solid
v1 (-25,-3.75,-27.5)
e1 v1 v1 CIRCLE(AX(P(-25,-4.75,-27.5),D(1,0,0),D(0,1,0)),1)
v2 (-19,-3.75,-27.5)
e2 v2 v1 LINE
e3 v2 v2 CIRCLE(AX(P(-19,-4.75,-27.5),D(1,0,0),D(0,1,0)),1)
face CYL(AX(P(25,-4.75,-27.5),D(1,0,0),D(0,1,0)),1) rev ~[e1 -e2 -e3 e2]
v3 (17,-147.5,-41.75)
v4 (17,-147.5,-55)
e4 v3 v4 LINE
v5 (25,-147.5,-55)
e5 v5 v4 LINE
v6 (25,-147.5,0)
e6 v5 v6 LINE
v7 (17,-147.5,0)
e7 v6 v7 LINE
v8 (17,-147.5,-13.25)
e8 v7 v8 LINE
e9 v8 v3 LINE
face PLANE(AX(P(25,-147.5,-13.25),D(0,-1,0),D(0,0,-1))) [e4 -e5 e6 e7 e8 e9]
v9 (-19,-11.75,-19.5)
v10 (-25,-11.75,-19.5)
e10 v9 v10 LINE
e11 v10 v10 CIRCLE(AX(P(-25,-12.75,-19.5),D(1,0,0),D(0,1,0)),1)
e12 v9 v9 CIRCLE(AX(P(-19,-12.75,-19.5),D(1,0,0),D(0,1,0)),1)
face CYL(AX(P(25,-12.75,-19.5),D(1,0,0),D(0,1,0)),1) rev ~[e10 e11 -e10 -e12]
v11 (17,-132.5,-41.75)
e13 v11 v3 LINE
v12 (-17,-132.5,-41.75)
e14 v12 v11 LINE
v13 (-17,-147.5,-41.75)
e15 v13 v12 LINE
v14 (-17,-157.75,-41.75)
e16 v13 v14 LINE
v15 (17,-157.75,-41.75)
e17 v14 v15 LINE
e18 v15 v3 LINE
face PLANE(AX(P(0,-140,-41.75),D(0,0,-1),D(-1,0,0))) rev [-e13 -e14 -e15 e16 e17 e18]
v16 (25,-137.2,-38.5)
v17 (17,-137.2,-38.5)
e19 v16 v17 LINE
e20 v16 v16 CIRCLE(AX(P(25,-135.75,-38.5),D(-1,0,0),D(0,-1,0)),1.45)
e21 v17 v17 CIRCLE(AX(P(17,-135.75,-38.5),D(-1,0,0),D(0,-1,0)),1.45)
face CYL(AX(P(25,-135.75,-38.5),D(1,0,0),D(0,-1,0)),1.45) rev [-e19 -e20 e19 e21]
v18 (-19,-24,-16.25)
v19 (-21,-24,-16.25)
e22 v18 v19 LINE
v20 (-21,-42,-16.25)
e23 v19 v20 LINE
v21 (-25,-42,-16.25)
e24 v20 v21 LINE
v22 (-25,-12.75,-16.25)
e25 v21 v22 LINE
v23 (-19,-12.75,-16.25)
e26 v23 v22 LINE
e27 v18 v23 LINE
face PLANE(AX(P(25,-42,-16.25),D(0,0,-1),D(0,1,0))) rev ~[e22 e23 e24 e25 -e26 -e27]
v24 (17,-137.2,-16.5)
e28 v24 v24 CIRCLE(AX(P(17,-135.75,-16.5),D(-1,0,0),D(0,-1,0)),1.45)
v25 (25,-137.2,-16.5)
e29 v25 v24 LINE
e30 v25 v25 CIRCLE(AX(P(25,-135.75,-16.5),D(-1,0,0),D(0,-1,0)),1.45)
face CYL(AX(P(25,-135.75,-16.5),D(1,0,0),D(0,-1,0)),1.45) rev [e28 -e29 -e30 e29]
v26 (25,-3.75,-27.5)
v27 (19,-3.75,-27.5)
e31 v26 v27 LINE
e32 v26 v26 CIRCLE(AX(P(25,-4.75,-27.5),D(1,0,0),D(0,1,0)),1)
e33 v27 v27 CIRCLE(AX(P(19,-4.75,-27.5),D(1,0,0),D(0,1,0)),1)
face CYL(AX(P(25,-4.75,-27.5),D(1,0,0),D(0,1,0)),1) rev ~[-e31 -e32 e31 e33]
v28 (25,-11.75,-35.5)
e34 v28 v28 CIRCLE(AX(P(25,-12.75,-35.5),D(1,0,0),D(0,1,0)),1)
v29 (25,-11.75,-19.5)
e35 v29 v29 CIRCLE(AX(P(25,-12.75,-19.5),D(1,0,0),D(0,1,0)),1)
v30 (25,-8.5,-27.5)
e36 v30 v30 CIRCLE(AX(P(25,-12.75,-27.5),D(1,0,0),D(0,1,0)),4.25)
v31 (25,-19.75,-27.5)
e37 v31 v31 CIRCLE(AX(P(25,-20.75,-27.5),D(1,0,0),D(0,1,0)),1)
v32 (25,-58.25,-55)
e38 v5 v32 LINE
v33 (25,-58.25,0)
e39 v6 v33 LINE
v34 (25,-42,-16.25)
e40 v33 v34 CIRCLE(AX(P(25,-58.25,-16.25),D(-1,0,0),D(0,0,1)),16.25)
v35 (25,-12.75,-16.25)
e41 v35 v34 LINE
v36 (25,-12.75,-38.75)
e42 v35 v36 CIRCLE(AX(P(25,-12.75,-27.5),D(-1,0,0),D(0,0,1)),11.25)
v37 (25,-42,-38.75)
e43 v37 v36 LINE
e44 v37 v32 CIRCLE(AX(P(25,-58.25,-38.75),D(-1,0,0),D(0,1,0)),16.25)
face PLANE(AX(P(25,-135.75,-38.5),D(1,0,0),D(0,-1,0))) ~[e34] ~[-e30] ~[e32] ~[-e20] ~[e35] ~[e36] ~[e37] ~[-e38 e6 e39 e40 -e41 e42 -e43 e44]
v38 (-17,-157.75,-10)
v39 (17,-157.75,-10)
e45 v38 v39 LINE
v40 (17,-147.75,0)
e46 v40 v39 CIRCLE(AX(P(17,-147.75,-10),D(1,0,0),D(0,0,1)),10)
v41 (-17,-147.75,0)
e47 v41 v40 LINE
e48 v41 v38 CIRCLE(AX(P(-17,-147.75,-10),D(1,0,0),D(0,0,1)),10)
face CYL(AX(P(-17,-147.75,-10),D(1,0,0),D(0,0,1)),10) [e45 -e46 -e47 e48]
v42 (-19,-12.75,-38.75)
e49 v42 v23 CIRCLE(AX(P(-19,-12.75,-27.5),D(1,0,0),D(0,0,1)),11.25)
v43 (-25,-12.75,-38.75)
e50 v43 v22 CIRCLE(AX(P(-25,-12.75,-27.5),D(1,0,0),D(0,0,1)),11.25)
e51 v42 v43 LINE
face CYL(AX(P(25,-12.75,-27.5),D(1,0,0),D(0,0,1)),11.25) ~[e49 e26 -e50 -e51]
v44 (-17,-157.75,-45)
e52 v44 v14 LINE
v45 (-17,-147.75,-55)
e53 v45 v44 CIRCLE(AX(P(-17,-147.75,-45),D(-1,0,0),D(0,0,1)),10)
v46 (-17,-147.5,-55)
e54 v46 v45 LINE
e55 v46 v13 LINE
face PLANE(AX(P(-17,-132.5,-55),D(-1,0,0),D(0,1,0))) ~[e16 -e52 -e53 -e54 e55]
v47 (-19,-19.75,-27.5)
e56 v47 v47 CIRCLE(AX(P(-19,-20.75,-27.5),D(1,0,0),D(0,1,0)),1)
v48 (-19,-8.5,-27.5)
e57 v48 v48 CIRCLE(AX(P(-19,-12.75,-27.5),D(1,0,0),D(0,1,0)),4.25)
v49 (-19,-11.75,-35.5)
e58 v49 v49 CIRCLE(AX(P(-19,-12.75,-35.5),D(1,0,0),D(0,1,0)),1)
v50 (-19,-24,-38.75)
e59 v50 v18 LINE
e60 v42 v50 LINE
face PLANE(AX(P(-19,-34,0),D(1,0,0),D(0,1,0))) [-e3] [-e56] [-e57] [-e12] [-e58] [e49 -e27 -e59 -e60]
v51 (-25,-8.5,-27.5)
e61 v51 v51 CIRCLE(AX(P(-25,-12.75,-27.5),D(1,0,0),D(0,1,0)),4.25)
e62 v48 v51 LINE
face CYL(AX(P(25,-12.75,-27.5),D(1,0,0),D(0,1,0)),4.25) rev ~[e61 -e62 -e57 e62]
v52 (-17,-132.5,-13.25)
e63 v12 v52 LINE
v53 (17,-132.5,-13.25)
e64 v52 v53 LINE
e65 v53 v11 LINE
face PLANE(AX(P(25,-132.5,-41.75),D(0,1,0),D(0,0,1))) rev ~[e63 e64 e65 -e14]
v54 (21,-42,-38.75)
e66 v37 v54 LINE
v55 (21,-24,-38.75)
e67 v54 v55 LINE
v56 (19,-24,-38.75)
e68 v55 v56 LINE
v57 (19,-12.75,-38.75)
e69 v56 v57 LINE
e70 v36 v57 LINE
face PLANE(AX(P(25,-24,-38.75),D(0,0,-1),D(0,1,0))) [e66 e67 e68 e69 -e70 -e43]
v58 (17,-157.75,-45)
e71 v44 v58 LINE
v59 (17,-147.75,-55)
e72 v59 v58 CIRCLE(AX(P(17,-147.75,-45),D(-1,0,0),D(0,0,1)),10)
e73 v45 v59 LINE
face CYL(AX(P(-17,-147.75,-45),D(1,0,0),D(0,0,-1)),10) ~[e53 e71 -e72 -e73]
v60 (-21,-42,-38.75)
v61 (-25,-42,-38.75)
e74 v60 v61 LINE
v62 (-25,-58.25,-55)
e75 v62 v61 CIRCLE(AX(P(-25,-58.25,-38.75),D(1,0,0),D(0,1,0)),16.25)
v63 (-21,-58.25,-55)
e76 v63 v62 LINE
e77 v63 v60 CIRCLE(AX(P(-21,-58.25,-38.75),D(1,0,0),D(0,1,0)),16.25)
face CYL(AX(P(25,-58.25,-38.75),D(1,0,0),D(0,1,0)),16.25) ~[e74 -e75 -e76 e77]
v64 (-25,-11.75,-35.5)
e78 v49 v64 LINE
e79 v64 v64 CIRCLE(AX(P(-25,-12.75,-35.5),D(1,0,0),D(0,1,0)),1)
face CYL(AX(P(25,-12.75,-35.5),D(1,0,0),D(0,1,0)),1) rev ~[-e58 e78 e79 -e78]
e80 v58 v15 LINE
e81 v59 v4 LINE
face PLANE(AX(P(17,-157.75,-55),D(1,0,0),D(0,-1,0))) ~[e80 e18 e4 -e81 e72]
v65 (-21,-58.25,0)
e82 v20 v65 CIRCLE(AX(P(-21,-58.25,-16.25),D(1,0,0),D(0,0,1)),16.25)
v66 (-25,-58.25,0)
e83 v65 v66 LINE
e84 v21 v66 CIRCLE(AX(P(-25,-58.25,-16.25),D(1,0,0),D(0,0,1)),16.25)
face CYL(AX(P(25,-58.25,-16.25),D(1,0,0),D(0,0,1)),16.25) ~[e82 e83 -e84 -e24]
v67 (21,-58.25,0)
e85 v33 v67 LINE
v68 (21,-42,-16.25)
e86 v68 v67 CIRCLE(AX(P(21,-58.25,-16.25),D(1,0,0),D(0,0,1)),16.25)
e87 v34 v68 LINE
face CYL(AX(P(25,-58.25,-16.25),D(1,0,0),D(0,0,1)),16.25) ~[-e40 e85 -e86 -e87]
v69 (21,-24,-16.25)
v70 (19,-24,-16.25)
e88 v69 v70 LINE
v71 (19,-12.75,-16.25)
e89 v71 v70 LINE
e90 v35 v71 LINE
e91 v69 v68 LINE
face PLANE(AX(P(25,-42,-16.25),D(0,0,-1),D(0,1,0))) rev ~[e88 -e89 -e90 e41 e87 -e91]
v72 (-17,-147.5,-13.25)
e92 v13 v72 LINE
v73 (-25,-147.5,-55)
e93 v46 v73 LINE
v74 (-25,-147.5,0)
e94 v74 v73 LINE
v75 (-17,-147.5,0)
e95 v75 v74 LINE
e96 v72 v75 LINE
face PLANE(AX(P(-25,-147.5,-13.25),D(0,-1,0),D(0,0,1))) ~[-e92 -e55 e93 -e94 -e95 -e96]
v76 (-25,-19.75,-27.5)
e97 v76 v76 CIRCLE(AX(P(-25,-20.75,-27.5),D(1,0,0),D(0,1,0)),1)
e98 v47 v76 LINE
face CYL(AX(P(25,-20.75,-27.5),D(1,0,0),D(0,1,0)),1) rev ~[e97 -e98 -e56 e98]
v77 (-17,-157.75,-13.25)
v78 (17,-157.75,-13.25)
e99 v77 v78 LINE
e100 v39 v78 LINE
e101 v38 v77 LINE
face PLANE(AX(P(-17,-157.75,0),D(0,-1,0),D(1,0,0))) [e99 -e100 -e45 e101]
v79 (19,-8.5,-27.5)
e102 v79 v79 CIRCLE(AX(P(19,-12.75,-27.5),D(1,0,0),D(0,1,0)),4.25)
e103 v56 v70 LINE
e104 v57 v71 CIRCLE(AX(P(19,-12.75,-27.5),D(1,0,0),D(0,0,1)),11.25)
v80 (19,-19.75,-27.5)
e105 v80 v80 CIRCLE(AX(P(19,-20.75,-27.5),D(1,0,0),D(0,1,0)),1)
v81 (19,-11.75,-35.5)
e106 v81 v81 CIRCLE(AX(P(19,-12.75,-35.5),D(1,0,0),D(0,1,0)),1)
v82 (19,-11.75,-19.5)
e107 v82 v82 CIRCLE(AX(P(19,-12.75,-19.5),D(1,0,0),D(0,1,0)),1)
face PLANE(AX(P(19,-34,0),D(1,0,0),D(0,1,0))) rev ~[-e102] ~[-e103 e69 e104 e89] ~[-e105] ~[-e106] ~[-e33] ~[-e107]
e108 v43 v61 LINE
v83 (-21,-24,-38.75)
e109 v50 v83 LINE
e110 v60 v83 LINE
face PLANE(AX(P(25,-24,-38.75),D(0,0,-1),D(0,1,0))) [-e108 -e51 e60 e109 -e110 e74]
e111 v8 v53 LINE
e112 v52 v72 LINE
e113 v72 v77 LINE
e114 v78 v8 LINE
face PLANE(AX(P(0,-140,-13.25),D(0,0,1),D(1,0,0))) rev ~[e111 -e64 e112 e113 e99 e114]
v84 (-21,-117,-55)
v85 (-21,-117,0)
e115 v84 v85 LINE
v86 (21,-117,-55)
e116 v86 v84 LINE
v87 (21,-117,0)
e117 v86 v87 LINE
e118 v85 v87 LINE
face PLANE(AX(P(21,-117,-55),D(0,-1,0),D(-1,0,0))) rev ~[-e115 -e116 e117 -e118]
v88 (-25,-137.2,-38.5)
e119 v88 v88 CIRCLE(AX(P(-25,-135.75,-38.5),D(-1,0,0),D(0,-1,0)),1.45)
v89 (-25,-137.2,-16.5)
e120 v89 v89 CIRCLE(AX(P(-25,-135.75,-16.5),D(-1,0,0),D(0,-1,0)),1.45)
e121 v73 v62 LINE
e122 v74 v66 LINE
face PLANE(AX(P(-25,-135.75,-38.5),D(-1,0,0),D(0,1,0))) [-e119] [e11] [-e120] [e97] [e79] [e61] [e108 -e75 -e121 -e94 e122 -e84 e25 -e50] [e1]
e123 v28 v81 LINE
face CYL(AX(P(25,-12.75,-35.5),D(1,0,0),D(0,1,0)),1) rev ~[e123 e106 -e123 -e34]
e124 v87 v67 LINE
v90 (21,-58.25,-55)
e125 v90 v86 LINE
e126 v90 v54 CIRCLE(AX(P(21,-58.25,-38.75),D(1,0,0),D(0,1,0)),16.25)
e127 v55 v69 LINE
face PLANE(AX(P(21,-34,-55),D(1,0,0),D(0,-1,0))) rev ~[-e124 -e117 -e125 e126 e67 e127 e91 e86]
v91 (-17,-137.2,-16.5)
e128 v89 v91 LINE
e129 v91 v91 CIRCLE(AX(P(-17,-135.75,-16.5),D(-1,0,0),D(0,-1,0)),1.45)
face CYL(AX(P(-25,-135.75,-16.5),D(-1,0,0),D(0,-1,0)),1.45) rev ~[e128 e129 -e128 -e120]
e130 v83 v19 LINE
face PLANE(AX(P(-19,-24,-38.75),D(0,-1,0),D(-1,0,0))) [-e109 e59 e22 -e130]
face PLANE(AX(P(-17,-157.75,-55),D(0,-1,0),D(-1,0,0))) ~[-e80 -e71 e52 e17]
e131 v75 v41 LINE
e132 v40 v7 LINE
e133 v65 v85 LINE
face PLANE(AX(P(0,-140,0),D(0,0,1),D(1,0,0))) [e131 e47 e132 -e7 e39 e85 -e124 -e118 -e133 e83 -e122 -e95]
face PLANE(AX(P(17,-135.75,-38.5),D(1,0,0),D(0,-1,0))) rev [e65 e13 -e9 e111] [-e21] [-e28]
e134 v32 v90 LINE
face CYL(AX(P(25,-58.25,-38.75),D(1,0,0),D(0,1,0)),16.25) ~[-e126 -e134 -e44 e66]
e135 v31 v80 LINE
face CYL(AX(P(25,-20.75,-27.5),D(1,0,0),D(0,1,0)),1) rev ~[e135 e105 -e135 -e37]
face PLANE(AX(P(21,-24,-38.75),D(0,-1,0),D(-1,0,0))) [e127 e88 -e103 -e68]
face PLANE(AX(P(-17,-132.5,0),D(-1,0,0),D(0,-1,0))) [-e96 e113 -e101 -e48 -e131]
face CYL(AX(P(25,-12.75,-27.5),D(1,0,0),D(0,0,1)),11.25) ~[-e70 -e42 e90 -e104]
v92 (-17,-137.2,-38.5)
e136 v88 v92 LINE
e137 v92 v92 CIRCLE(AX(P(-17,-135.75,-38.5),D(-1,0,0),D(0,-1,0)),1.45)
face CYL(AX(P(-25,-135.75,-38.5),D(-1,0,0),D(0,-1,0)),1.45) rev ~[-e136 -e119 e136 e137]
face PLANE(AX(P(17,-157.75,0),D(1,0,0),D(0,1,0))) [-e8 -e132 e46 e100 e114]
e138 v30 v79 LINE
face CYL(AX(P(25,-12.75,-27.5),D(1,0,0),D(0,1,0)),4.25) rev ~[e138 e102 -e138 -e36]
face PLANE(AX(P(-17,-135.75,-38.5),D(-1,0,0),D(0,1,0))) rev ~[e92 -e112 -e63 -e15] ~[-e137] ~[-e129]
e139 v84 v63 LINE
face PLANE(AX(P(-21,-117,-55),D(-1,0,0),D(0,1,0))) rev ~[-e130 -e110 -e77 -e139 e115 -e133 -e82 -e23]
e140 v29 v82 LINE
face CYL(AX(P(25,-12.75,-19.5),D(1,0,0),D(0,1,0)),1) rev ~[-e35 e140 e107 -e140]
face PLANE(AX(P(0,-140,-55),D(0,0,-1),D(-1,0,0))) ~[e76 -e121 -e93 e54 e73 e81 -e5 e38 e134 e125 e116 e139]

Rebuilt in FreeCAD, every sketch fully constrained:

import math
import FreeCAD as App
import Part
import Sketcher

V = App.Vector
Q = App.Units.Quantity


def edges_at(feature, points):
    """Names of the edges that pass closest to the given points."""
    edges = feature.Shape.Edges
    near = lambda p: min(range(len(edges)), key=lambda i: edges[i].distToShape(Part.Vertex(*p))[0])
    return sorted({f"Edge{near(p) + 1}" for p in points})


def add_polygon(sketch, points):
    """Adds a closed chain of lines whose ends are joined by coincident constraints."""
    first, n = sketch.GeometryCount, len(points)
    for a, b in zip(points, points[1:] + points[:1]):
        sketch.addGeometry(Part.LineSegment(App.Vector(*a, 0), App.Vector(*b, 0)), False)
    for i in range(n):
        sketch.addConstraint(Sketcher.Constraint("Coincident", first + i, 2, first + (i + 1) % n, 1))

doc = App.newDocument("Part")
body = doc.addObject("PartDesign::Body", "Body")

# Sketch on XY plane
sketch1 = body.newObject("Sketcher::SketchObject", "Sketch")
sketch1.AttachmentSupport = (doc.getObject("XY_Plane"), [""])
sketch1.MapMode = "FlatFace"
add_polygon(sketch1, [(-25, 0), (-25, -170), (25, -170), (25, 0)])  # lines 0-3
sketch1.addConstraint([
    Sketcher.Constraint("Vertical", 0),
    Sketcher.Constraint("Horizontal", 1),
    Sketcher.Constraint("Vertical", 2),
    Sketcher.Constraint("Horizontal", 3),
    Sketcher.Constraint("Symmetric", 2, 2, 3, 2, -1, 1),
    Sketcher.Constraint("DistanceX", 1, 1, 1, 2, Q("50 mm")),
    Sketcher.Constraint("DistanceY", 0, 2, 0, 1, Q("170 mm")),
])
pad1 = body.newObject("PartDesign::Pad", "Pad")
pad1.Profile = sketch1
pad1.Length = 55
pad1.Reversed = True

# Sketch on XY plane
sketch2 = body.newObject("Sketcher::SketchObject", "Sketch001")
sketch2.AttachmentSupport = (doc.getObject("XY_Plane"), [""])
sketch2.MapMode = "FlatFace"
add_polygon(sketch2, [(-17, 0), (-17, -27), (17, -27), (17, 0)])  # lines 0-3
sketch2.addConstraint([
    Sketcher.Constraint("Vertical", 0),
    Sketcher.Constraint("Horizontal", 1),
    Sketcher.Constraint("Vertical", 2),
    Sketcher.Constraint("Horizontal", 3),
    Sketcher.Constraint("Symmetric", 2, 2, 3, 2, -1, 1),
    Sketcher.Constraint("DistanceX", 1, 1, 1, 2, Q("34 mm")),
    Sketcher.Constraint("DistanceY", 0, 2, 0, 1, Q("27 mm")),
])
pocket1 = body.newObject("PartDesign::Pocket", "Pocket")
pocket1.Profile = sketch2
pocket1.Type = "ThroughAll"

# Sketch on YZ plane
sketch3 = body.newObject("Sketcher::SketchObject", "Sketch002")
sketch3.AttachmentSupport = (doc.getObject("YZ_Plane"), [""])
sketch3.MapMode = "FlatFace"
sketch3.AttachmentOffset = App.Placement(V(0, 0, 25), App.Rotation())
add_polygon(sketch3, [(0, -45), (-24, -45), (-24, -55), (0, -55)])  # lines 0-3
add_polygon(sketch3, [(0, 0), (-24, 0), (-24, -10), (0, -10)])  # lines 4-7
sketch3.addGeometry(Part.Circle(V(-12.75, -27.5, 0), V(0, 0, 1), 4.25), False)  # 8
sketch3.addGeometry(Part.Circle(V(-12.75, -35.5, 0), V(0, 0, 1), 1), False)  # 9
sketch3.addGeometry(Part.Circle(V(-4.75, -27.5, 0), V(0, 0, 1), 1), False)  # 10
sketch3.addGeometry(Part.Circle(V(-20.75, -27.5, 0), V(0, 0, 1), 1), False)  # 11
sketch3.addGeometry(Part.Circle(V(-12.75, -19.5, 0), V(0, 0, 1), 1), False)  # 12
sketch3.addConstraint([
    Sketcher.Constraint("Horizontal", 0),
    Sketcher.Constraint("Vertical", 1),
    Sketcher.Constraint("Horizontal", 2),
    Sketcher.Constraint("Vertical", 3),
    Sketcher.Constraint("Horizontal", 4),
    Sketcher.Constraint("Vertical", 5),
    Sketcher.Constraint("Horizontal", 6),
    Sketcher.Constraint("Vertical", 7),
    Sketcher.Constraint("Coincident", 7, 2, -1, 1),
    Sketcher.Constraint("Equal", 9, 10),
    Sketcher.Constraint("Equal", 10, 11),
    Sketcher.Constraint("Equal", 11, 12),
    Sketcher.Constraint("PointOnObject", 2, 2, -2),
    Sketcher.Constraint("Horizontal", 8, 3, 10, 3),
    Sketcher.Constraint("Horizontal", 10, 3, 11, 3),
    Sketcher.Constraint("Vertical", 8, 3, 9, 3),
    Sketcher.Constraint("Vertical", 9, 3, 12, 3),
    Sketcher.Constraint("Vertical", 1, 2, 4, 2),
    Sketcher.Constraint("Equal", 3, 5),
    Sketcher.Constraint("Diameter", 9, Q("2 mm")),
    Sketcher.Constraint("Diameter", 8, Q("8.5 mm")),
    Sketcher.Constraint("DistanceX", 0, 2, 0, 1, Q("24 mm")),
    Sketcher.Constraint("DistanceY", 1, 2, 1, 1, Q("10 mm")),
    Sketcher.Constraint("DistanceY", 0, 2, -1, 1, Q("45 mm")),
    Sketcher.Constraint("DistanceY", 9, 3, 8, 3, Q("8 mm")),
    Sketcher.Constraint("DistanceX", 8, 3, 10, 3, Q("8 mm")),
    Sketcher.Constraint("DistanceX", 11, 3, 8, 3, Q("8 mm")),
    Sketcher.Constraint("DistanceY", 8, 3, 12, 3, Q("8 mm")),
    Sketcher.Constraint("DistanceY", 8, 3, -1, 1, Q("27.5 mm")),
    Sketcher.Constraint("DistanceX", 8, 3, -1, 1, Q("12.75 mm")),
])
pocket2 = body.newObject("PartDesign::Pocket", "Pocket001")
pocket2.Profile = sketch3
pocket2.Type = "ThroughAll"

# Sketch on XY plane
sketch4 = body.newObject("Sketcher::SketchObject", "Sketch003")
sketch4.AttachmentSupport = (doc.getObject("XY_Plane"), [""])
sketch4.MapMode = "FlatFace"
sketch4.AttachmentOffset = App.Placement(V(0, 0, -10), App.Rotation())
add_polygon(sketch4, [(-19, 0), (-19, -24), (-17, -24), (-17, 0)])  # lines 0-3
add_polygon(sketch4, [(17, 0), (17, -24), (19, -24), (19, 0)])  # lines 4-7
sketch4.addConstraint([
    Sketcher.Constraint("Vertical", 0),
    Sketcher.Constraint("Horizontal", 1),
    Sketcher.Constraint("Vertical", 2),
    Sketcher.Constraint("Horizontal", 3),
    Sketcher.Constraint("Vertical", 4),
    Sketcher.Constraint("Horizontal", 5),
    Sketcher.Constraint("Vertical", 6),
    Sketcher.Constraint("Horizontal", 7),
    Sketcher.Constraint("Symmetric", 3, 2, 6, 2, -1, 1),
    Sketcher.Constraint("Symmetric", 1, 2, 4, 2, -2),
    Sketcher.Constraint("PointOnObject", 2, 2, -1),
    Sketcher.Constraint("DistanceX", 1, 1, 1, 2, Q("2 mm")),
    Sketcher.Constraint("DistanceY", 0, 2, 0, 1, Q("24 mm")),
    Sketcher.Constraint("DistanceX", 0, 2, -1, 1, Q("19 mm")),
])
pocket3 = body.newObject("PartDesign::Pocket", "Pocket002")
pocket3.Profile = sketch4
pocket3.Type = "ThroughAll"

# Sketch on YZ plane
sketch5 = body.newObject("Sketcher::SketchObject", "Sketch004")
sketch5.AttachmentSupport = (doc.getObject("YZ_Plane"), [""])
sketch5.MapMode = "FlatFace"
sketch5.AttachmentOffset = App.Placement(V(0, 0, 25), App.Rotation())
sketch5.addGeometry([
    Part.LineSegment(V(0, -45, 0), V(0, -10, 0)),  # 0
    Part.LineSegment(V(0, -10, 0), V(-24, -10, 0)),  # 1
    Part.LineSegment(V(-24, -10, 0), V(-24, -16.25, 0)),  # 2
    Part.LineSegment(V(-24, -16.25, 0), V(-12.75, -16.25, 0)),  # 3
    Part.ArcOfCircle(Part.Circle(V(-12.75, -27.5, 0), V(0, 0, 1), 11.25), math.radians(-90), math.radians(90)),  # 4
    Part.LineSegment(V(-12.75, -38.75, 0), V(-24, -38.75, 0)),  # 5
    Part.LineSegment(V(-24, -38.75, 0), V(-24, -45, 0)),  # 6
    Part.LineSegment(V(-24, -45, 0), V(0, -45, 0)),  # 7
], False)
sketch5.addConstraint([
    Sketcher.Constraint("Coincident", 0, 2, 1, 1),
    Sketcher.Constraint("Coincident", 1, 2, 2, 1),
    Sketcher.Constraint("Coincident", 2, 2, 3, 1),
    Sketcher.Constraint("Tangent", 3, 2, 4, 2),
    Sketcher.Constraint("Tangent", 4, 1, 5, 1),
    Sketcher.Constraint("Coincident", 5, 2, 6, 1),
    Sketcher.Constraint("Coincident", 6, 2, 7, 1),
    Sketcher.Constraint("Coincident", 7, 2, 0, 1),
    Sketcher.Constraint("Vertical", 0),
    Sketcher.Constraint("Horizontal", 1),
    Sketcher.Constraint("Vertical", 2),
    Sketcher.Constraint("Horizontal", 3),
    Sketcher.Constraint("Horizontal", 5),
    Sketcher.Constraint("Vertical", 6),
    Sketcher.Constraint("Horizontal", 7),
    Sketcher.Constraint("PointOnObject", 0, 2, -2),
    Sketcher.Constraint("Vertical", 2, 2, 5, 2),
    Sketcher.Constraint("Equal", 2, 6),
    Sketcher.Constraint("DistanceX", 1, 2, 1, 1, Q("24 mm")),
    Sketcher.Constraint("DistanceY", 0, 1, 0, 2, Q("35 mm")),
    Sketcher.Constraint("Radius", 4, Q("11.25 mm")),
    Sketcher.Constraint("DistanceY", 0, 2, -1, 1, Q("10 mm")),
    Sketcher.Constraint("DistanceX", 3, 1, 3, 2, Q("11.25 mm")),
])
pocket4 = body.newObject("PartDesign::Pocket", "Pocket003")
pocket4.Profile = sketch5
pocket4.Type = "ThroughAll"

# Sketch on XY plane
sketch6 = body.newObject("Sketcher::SketchObject", "Sketch005")
sketch6.AttachmentSupport = (doc.getObject("XY_Plane"), [""])
sketch6.MapMode = "FlatFace"
add_polygon(sketch6, [(-19, -24), (-19, -34), (19, -34), (19, -24)])  # lines 0-3
sketch6.addConstraint([
    Sketcher.Constraint("Vertical", 0),
    Sketcher.Constraint("Horizontal", 1),
    Sketcher.Constraint("Vertical", 2),
    Sketcher.Constraint("Horizontal", 3),
    Sketcher.Constraint("DistanceX", 1, 1, 1, 2, Q("38 mm")),
    Sketcher.Constraint("DistanceY", 0, 2, 0, 1, Q("10 mm")),
    Sketcher.Constraint("DistanceX", 0, 2, -1, 1, Q("19 mm")),
    Sketcher.Constraint("DistanceY", 0, 2, -1, 1, Q("34 mm")),
])
pocket5 = body.newObject("PartDesign::Pocket", "Pocket004")
pocket5.Profile = sketch6
pocket5.Type = "ThroughAll"

# Sketch on YZ plane
sketch7 = body.newObject("Sketcher::SketchObject", "Sketch006")
sketch7.AttachmentSupport = (doc.getObject("YZ_Plane"), [""])
sketch7.MapMode = "FlatFace"
sketch7.AttachmentOffset = App.Placement(V(0, 0, 25), App.Rotation())
add_polygon(sketch7, [(-132.5, -13.25), (-167.75, -13.25), (-167.75, 0), (-170, 0), (-170, -55), (-167.75, -55), (-167.75, -41.75), (-132.5, -41.75)])  # lines 0-7
sketch7.addConstraint([
    Sketcher.Constraint("Horizontal", 0),
    Sketcher.Constraint("Vertical", 1),
    Sketcher.Constraint("Horizontal", 2),
    Sketcher.Constraint("Vertical", 3),
    Sketcher.Constraint("Horizontal", 4),
    Sketcher.Constraint("Vertical", 5),
    Sketcher.Constraint("Horizontal", 6),
    Sketcher.Constraint("Vertical", 7),
    Sketcher.Constraint("PointOnObject", 1, 2, -1),
    Sketcher.Constraint("Vertical", 1, 2, 4, 2),
    Sketcher.Constraint("Equal", 1, 5),
    Sketcher.Constraint("DistanceY", 3, 2, 3, 1, Q("55 mm")),
    Sketcher.Constraint("DistanceY", 7, 1, 7, 2, Q("28.5 mm")),
    Sketcher.Constraint("DistanceX", 2, 2, -1, 1, Q("170 mm")),
    Sketcher.Constraint("DistanceX", 0, 2, 0, 1, Q("35.25 mm")),
    Sketcher.Constraint("DistanceX", 2, 2, 2, 1, Q("2.25 mm")),
])
pocket6 = body.newObject("PartDesign::Pocket", "Pocket005")
pocket6.Profile = sketch7
pocket6.Type = "ThroughAll"

# Sketch on XY plane
sketch8 = body.newObject("Sketcher::SketchObject", "Sketch007")
sketch8.AttachmentSupport = (doc.getObject("XY_Plane"), [""])
sketch8.MapMode = "FlatFace"
add_polygon(sketch8, [(-17, -132.5), (-17, -167.75), (17, -167.75), (17, -132.5)])  # lines 0-3
sketch8.addConstraint([
    Sketcher.Constraint("Vertical", 0),
    Sketcher.Constraint("Horizontal", 1),
    Sketcher.Constraint("Vertical", 2),
    Sketcher.Constraint("Horizontal", 3),
    Sketcher.Constraint("DistanceX", 1, 1, 1, 2, Q("34 mm")),
    Sketcher.Constraint("DistanceX", 0, 2, -1, 1, Q("17 mm")),
    Sketcher.Constraint("DistanceY", 0, 2, 0, 1, Q("35.25 mm")),
    Sketcher.Constraint("DistanceY", 2, 2, -1, 1, Q("132.5 mm")),
])
pocket7 = body.newObject("PartDesign::Pocket", "Pocket006")
pocket7.Profile = sketch8
pocket7.Type = "ThroughAll"

# Sketch on YZ plane
sketch9 = body.newObject("Sketcher::SketchObject", "Sketch008")
sketch9.AttachmentSupport = (doc.getObject("YZ_Plane"), [""])
sketch9.MapMode = "FlatFace"
sketch9.AttachmentOffset = App.Placement(V(0, 0, 25), App.Rotation())
sketch9.addGeometry([
    Part.ArcOfCircle(Part.Circle(V(-167.75, -27.5, 0), V(0, 0, 1), 10.25), math.radians(0), math.radians(90)),  # 0
    Part.ArcOfCircle(Part.Circle(V(-167.75, -27.5, 0), V(0, 0, 1), 10.25), math.radians(-90), math.radians(0)),  # 1
    Part.LineSegment(V(-167.75, -37.75, 0), V(-167.75, -55, 0)),  # 2
    Part.LineSegment(V(-167.75, -55, 0), V(-147.5, -55, 0)),  # 3
    Part.LineSegment(V(-147.5, -55, 0), V(-147.5, 0, 0)),  # 4
    Part.LineSegment(V(-147.5, 0, 0), V(-167.75, 0, 0)),  # 5
    Part.LineSegment(V(-167.75, 0, 0), V(-167.75, -17.25, 0)),  # 6
], False)
sketch9.addConstraint([
    Sketcher.Constraint("Tangent", 0, 1, 1, 2),
    Sketcher.Constraint("Coincident", 1, 1, 2, 1),
    Sketcher.Constraint("Coincident", 2, 2, 3, 1),
    Sketcher.Constraint("Coincident", 3, 2, 4, 1),
    Sketcher.Constraint("Coincident", 4, 2, 5, 1),
    Sketcher.Constraint("Coincident", 5, 2, 6, 1),
    Sketcher.Constraint("Coincident", 6, 2, 0, 2),
    Sketcher.Constraint("Vertical", 2),
    Sketcher.Constraint("Horizontal", 3),
    Sketcher.Constraint("Vertical", 4),
    Sketcher.Constraint("Horizontal", 5),
    Sketcher.Constraint("Vertical", 6),
    Sketcher.Constraint("Equal", 0, 1),
    Sketcher.Constraint("PointOnObject", 4, 2, -1),
    Sketcher.Constraint("Horizontal", 1, 3, 0, 1),
    Sketcher.Constraint("Vertical", 0, 3, 1, 1),
    Sketcher.Constraint("Vertical", 2, 2, 5, 2),
    Sketcher.Constraint("Equal", 2, 6),
    Sketcher.Constraint("DistanceY", 4, 1, 4, 2, Q("55 mm")),
    Sketcher.Constraint("Radius", 0, Q("10.25 mm")),
    Sketcher.Constraint("DistanceX", 0, 1, 3, 2, Q("10 mm")),
    Sketcher.Constraint("DistanceX", 0, 1, -1, 1, Q("157.5 mm")),
])
pocket8 = body.newObject("PartDesign::Pocket", "Pocket007")
pocket8.Profile = sketch9
pocket8.Type = "ThroughAll"

# Sketch on YZ plane
sketch10 = body.newObject("Sketcher::SketchObject", "Sketch009")
sketch10.AttachmentSupport = (doc.getObject("YZ_Plane"), [""])
sketch10.MapMode = "FlatFace"
sketch10.AttachmentOffset = App.Placement(V(0, 0, 25), App.Rotation())
add_polygon(sketch10, [(-132.5, -13.25), (-147.5, -13.25), (-147.5, -41.75), (-132.5, -41.75)])  # lines 0-3
sketch10.addConstraint([
    Sketcher.Constraint("Horizontal", 0),
    Sketcher.Constraint("Vertical", 1),
    Sketcher.Constraint("Horizontal", 2),
    Sketcher.Constraint("Vertical", 3),
    Sketcher.Constraint("DistanceX", 0, 2, 0, 1, Q("15 mm")),
    Sketcher.Constraint("DistanceY", 1, 2, 1, 1, Q("28.5 mm")),
    Sketcher.Constraint("DistanceX", 0, 2, -1, 1, Q("147.5 mm")),
    Sketcher.Constraint("DistanceY", 0, 2, -1, 1, Q("13.25 mm")),
])
pad2 = body.newObject("PartDesign::Pad", "Pad001")
pad2.Profile = sketch10
pad2.Length = 8
pad2.Reversed = True
doc.recompute()

mirrored = body.newObject("PartDesign::Mirrored", "Mirrored")
mirrored.Originals = [pad2]
mirrored.MirrorPlane = (doc.getObject("YZ_Plane"), [""])
body.Tip = mirrored

# Sketch on XY plane
sketch11 = body.newObject("Sketcher::SketchObject", "Sketch010")
sketch11.AttachmentSupport = (doc.getObject("XY_Plane"), [""])
sketch11.MapMode = "FlatFace"
add_polygon(sketch11, [(-17, -132.5), (-17, -157.75), (17, -157.75), (17, -132.5)])  # lines 0-3
sketch11.addConstraint([
    Sketcher.Constraint("Vertical", 0),
    Sketcher.Constraint("Horizontal", 1),
    Sketcher.Constraint("Vertical", 2),
    Sketcher.Constraint("Horizontal", 3),
    Sketcher.Constraint("DistanceX", 1, 1, 1, 2, Q("34 mm")),
    Sketcher.Constraint("DistanceX", 0, 2, -1, 1, Q("17 mm")),
    Sketcher.Constraint("DistanceY", 0, 2, 0, 1, Q("25.25 mm")),
    Sketcher.Constraint("DistanceY", 2, 2, -1, 1, Q("132.5 mm")),
])
pad3 = body.newObject("PartDesign::Pad", "Pad002")
pad3.Profile = sketch11
pad3.Length = 13.25
pad3.Reversed = True
doc.recompute()

datumplane = body.newObject("PartDesign::Plane", "DatumPlane")
datumplane.AttachmentSupport = (doc.getObject("XY_Plane"), [""])
datumplane.MapMode = "FlatFace"
datumplane.AttachmentOffset = App.Placement(V(0, 0, -27.5), App.Rotation())
mirrored2 = body.newObject("PartDesign::Mirrored", "Mirrored001")
mirrored2.Originals = [pad3]
mirrored2.MirrorPlane = (datumplane, [""])
body.Tip = mirrored2

# Sketch on YZ plane
sketch12 = body.newObject("Sketcher::SketchObject", "Sketch011")
sketch12.AttachmentSupport = (doc.getObject("YZ_Plane"), [""])
sketch12.MapMode = "FlatFace"
sketch12.AttachmentOffset = App.Placement(V(0, 0, 25), App.Rotation())
sketch12.addGeometry([
    Part.Circle(V(-135.75, -16.5, 0), V(0, 0, 1), 4.5),
    Part.Circle(V(-135.75, -38.5, 0), V(0, 0, 1), 4.5),
], False)
sketch12.addConstraint([
    Sketcher.Constraint("Equal", 0, 1),
    Sketcher.Constraint("Vertical", 0, 3, 1, 3),
    Sketcher.Constraint("Diameter", 0, Q("9 mm")),
    Sketcher.Constraint("DistanceY", 1, 3, 0, 3, Q("22 mm")),
    Sketcher.Constraint("DistanceY", 0, 3, -1, 1, Q("16.5 mm")),
    Sketcher.Constraint("DistanceX", 0, 3, -1, 1, Q("135.75 mm")),
])
pocket9 = body.newObject("PartDesign::Pocket", "Pocket008")
pocket9.Profile = sketch12
pocket9.Length = 8
doc.recompute()

mirrored3 = body.newObject("PartDesign::Mirrored", "Mirrored002")
mirrored3.Originals = [pocket9]
mirrored3.MirrorPlane = (doc.getObject("YZ_Plane"), [""])
body.Tip = mirrored3

# Sketch on YZ plane
sketch13 = body.newObject("Sketcher::SketchObject", "Sketch012")
sketch13.AttachmentSupport = (doc.getObject("YZ_Plane"), [""])
sketch13.MapMode = "FlatFace"
sketch13.AttachmentOffset = App.Placement(V(0, 0, 25), App.Rotation())
add_polygon(sketch13, [(-24, -38.75), (-42, -38.75), (-42, -55), (-24, -55)])  # lines 0-3
add_polygon(sketch13, [(-24, 0), (-42, 0), (-42, -16.25), (-24, -16.25)])  # lines 4-7
sketch13.addConstraint([
    Sketcher.Constraint("Horizontal", 0),
    Sketcher.Constraint("Vertical", 1),
    Sketcher.Constraint("Horizontal", 2),
    Sketcher.Constraint("Vertical", 3),
    Sketcher.Constraint("Horizontal", 4),
    Sketcher.Constraint("Vertical", 5),
    Sketcher.Constraint("Horizontal", 6),
    Sketcher.Constraint("Vertical", 7),
    Sketcher.Constraint("PointOnObject", 4, 2, -1),
    Sketcher.Constraint("Vertical", 1, 2, 4, 2),
    Sketcher.Constraint("Vertical", 3, 2, 6, 2),
    Sketcher.Constraint("Equal", 3, 5),
    Sketcher.Constraint("DistanceX", 0, 2, 0, 1, Q("18 mm")),
    Sketcher.Constraint("DistanceX", 0, 2, -1, 1, Q("42 mm")),
    Sketcher.Constraint("DistanceY", 1, 2, -1, 1, Q("55 mm")),
    Sketcher.Constraint("DistanceY", 1, 2, 1, 1, Q("16.25 mm")),
])
pocket10 = body.newObject("PartDesign::Pocket", "Pocket009")
pocket10.Profile = sketch13
pocket10.Type = "ThroughAll"

# Sketch on YZ plane
sketch14 = body.newObject("Sketcher::SketchObject", "Sketch013")
sketch14.AttachmentSupport = (doc.getObject("YZ_Plane"), [""])
sketch14.MapMode = "FlatFace"
sketch14.AttachmentOffset = App.Placement(V(0, 0, 25), App.Rotation())
sketch14.addGeometry([
    Part.ArcOfCircle(Part.Circle(V(-58.25, -16.25, 0), V(0, 0, 1), 16.25), math.radians(0), math.radians(90)),  # 0
    Part.LineSegment(V(-42, -16.25, 0), V(-42, 0, 0)),  # 1
    Part.LineSegment(V(-42, 0, 0), V(-58.25, 0, 0)),  # 2
    Part.LineSegment(V(-42, -55, 0), V(-42, -38.75, 0)),  # 3
    Part.ArcOfCircle(Part.Circle(V(-58.25, -38.75, 0), V(0, 0, 1), 16.25), math.radians(-90), math.radians(0)),  # 4
    Part.LineSegment(V(-58.25, -55, 0), V(-42, -55, 0)),  # 5
], False)
sketch14.addConstraint([
    Sketcher.Constraint("Tangent", 0, 1, 1, 1),
    Sketcher.Constraint("Coincident", 1, 2, 2, 1),
    Sketcher.Constraint("Tangent", 2, 2, 0, 2),
    Sketcher.Constraint("Tangent", 3, 2, 4, 2),
    Sketcher.Constraint("Tangent", 4, 1, 5, 1),
    Sketcher.Constraint("Coincident", 5, 2, 3, 1),
    Sketcher.Constraint("Vertical", 1),
    Sketcher.Constraint("Horizontal", 2),
    Sketcher.Constraint("Vertical", 3),
    Sketcher.Constraint("Horizontal", 5),
    Sketcher.Constraint("Equal", 0, 4),
    Sketcher.Constraint("PointOnObject", 1, 2, -1),
    Sketcher.Constraint("Vertical", 0, 3, 4, 3),
    Sketcher.Constraint("Radius", 0, Q("16.25 mm")),
    Sketcher.Constraint("DistanceX", 0, 1, -1, 1, Q("42 mm")),
    Sketcher.Constraint("DistanceY", 4, 1, -1, 1, Q("55 mm")),
])
pocket11 = body.newObject("PartDesign::Pocket", "Pocket010")
pocket11.Profile = sketch14
pocket11.Type = "ThroughAll"

# Sketch on XY plane
sketch15 = body.newObject("Sketcher::SketchObject", "Sketch014")
sketch15.AttachmentSupport = (doc.getObject("XY_Plane"), [""])
sketch15.MapMode = "FlatFace"
sketch15.AttachmentOffset = App.Placement(V(0, 0, -55), App.Rotation())
add_polygon(sketch15, [(-21, -34), (21, -34), (21, -117), (-21, -117)])  # lines 0-3
sketch15.addConstraint([
    Sketcher.Constraint("Horizontal", 0),
    Sketcher.Constraint("Vertical", 1),
    Sketcher.Constraint("Horizontal", 2),
    Sketcher.Constraint("Vertical", 3),
    Sketcher.Constraint("DistanceX", 0, 1, 0, 2, Q("42 mm")),
    Sketcher.Constraint("DistanceY", 1, 2, 1, 1, Q("83 mm")),
    Sketcher.Constraint("DistanceX", -1, 1, 0, 2, Q("21 mm")),
    Sketcher.Constraint("DistanceY", 0, 2, -1, 1, Q("34 mm")),
])
pocket12 = body.newObject("PartDesign::Pocket", "Pocket011")
pocket12.Profile = sketch15
pocket12.Type = "ThroughAll"
pocket12.Reversed = True

# Sketch on YZ plane
sketch16 = body.newObject("Sketcher::SketchObject", "Sketch015")
sketch16.AttachmentSupport = (doc.getObject("YZ_Plane"), [""])
sketch16.MapMode = "FlatFace"
sketch16.AttachmentOffset = App.Placement(V(0, 0, -25), App.Rotation())
sketch16.addGeometry([
    Part.Circle(V(-135.75, -38.5, 0), V(0, 0, 1), 4.5),
    Part.Circle(V(-135.75, -38.5, 0), V(0, 0, 1), 1.45),
    Part.Circle(V(-135.75, -16.5, 0), V(0, 0, 1), 4.5),
    Part.Circle(V(-135.75, -16.5, 0), V(0, 0, 1), 1.45),
], False)
sketch16.addConstraint([
    Sketcher.Constraint("Coincident", 1, 3, 0, 3),
    Sketcher.Constraint("Coincident", 3, 3, 2, 3),
    Sketcher.Constraint("Equal", 0, 2),
    Sketcher.Constraint("Equal", 1, 3),
    Sketcher.Constraint("Vertical", 1, 3, 2, 3),
    Sketcher.Constraint("Diameter", 0, Q("9 mm")),
    Sketcher.Constraint("Diameter", 1, Q("2.9 mm")),
    Sketcher.Constraint("DistanceY", 0, 3, 2, 3, Q("22 mm")),
    Sketcher.Constraint("DistanceY", 0, 3, -1, 1, Q("38.5 mm")),
    Sketcher.Constraint("DistanceX", 0, 3, -1, 1, Q("135.75 mm")),
])
pad4 = body.newObject("PartDesign::Pad", "Pad003")
pad4.Profile = sketch16
pad4.Length = 8
doc.recompute()

mirrored4 = body.newObject("PartDesign::Mirrored", "Mirrored003")
mirrored4.Originals = [pad4]
mirrored4.MirrorPlane = (doc.getObject("YZ_Plane"), [""])
body.Tip = mirrored4

# Sketch on XY plane
sketch17 = body.newObject("Sketcher::SketchObject", "Sketch016")
sketch17.AttachmentSupport = (doc.getObject("XY_Plane"), [""])
sketch17.MapMode = "FlatFace"
sketch17.AttachmentOffset = App.Placement(V(0, 0, -38.75), App.Rotation())
add_polygon(sketch17, [(21, -24), (21, -34), (19, -34), (19, -24)])  # lines 0-3
add_polygon(sketch17, [(-19, -24), (-19, -34), (-21, -34), (-21, -24)])  # lines 4-7
sketch17.addConstraint([
    Sketcher.Constraint("Vertical", 0),
    Sketcher.Constraint("Horizontal", 1),
    Sketcher.Constraint("Vertical", 2),
    Sketcher.Constraint("Horizontal", 3),
    Sketcher.Constraint("Vertical", 4),
    Sketcher.Constraint("Horizontal", 5),
    Sketcher.Constraint("Vertical", 6),
    Sketcher.Constraint("Horizontal", 7),
    Sketcher.Constraint("Symmetric", 1, 2, 4, 2, -2),
    Sketcher.Constraint("Symmetric", 3, 2, 6, 2, -2),
    Sketcher.Constraint("DistanceX", 1, 2, 1, 1, Q("2 mm")),
    Sketcher.Constraint("DistanceY", 0, 2, 0, 1, Q("10 mm")),
    Sketcher.Constraint("DistanceX", -1, 1, 0, 2, Q("21 mm")),
    Sketcher.Constraint("DistanceY", 0, 2, -1, 1, Q("34 mm")),
])
pocket13 = body.newObject("PartDesign::Pocket", "Pocket012")
pocket13.Profile = sketch17
pocket13.Type = "ThroughAll"
pocket13.Reversed = True
doc.recompute()

fillet = body.newObject("PartDesign::Fillet", "Fillet")
fillet.Base = (pocket13, edges_at(pocket13, [(0, -157.75, 0), (0, -157.75, -55)]))
fillet.Radius = 10

doc.recompute()
